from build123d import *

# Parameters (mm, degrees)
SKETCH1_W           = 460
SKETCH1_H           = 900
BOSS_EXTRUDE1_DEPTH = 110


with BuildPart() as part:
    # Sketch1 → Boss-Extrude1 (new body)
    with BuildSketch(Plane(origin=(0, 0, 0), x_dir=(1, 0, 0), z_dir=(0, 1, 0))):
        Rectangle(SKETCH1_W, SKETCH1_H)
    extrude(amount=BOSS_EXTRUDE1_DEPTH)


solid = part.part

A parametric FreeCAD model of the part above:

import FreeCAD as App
import Part
import Sketcher
from FreeCAD import Vector


def add_polygon(sketch, points):
    """Adds a closed chain of lines whose ends are joined by coincident constraints."""
    first, n = sketch.GeometryCount, len(points)
    for a, b in zip(points, points[1:] + points[:1]):
        sketch.addGeometry(Part.LineSegment(App.Vector(*a, 0), App.Vector(*b, 0)), False)
    for i in range(n):
        sketch.addConstraint(Sketcher.Constraint("Coincident", first + i, 2, first + (i + 1) % n, 1))

doc = App.newDocument("Part")
params = doc.addObject("Spreadsheet::Sheet", "Params")
for row, (alias, value) in enumerate([
    ("sketch1_width", "460 mm"),
    ("sketch1_height", "900 mm"),
    ("pad1_length", "110 mm"),
], start=1):
    params.set(f"A{row}", alias)
    params.set(f"B{row}", "=" + value)
    params.setAlias(f"B{row}", alias)

body = doc.addObject("PartDesign::Body", "Body")

# Sketch on XZ plane
sketch1 = body.newObject("Sketcher::SketchObject", "Sketch")
sketch1.AttachmentSupport = (doc.getObject("XZ_Plane"), [""])
sketch1.MapMode = "FlatFace"
add_polygon(sketch1, [(-230, -450), (-230, 450), (230, 450), (230, -450)])  # lines 0-3
sketch1.addConstraint([
    Sketcher.Constraint("Vertical", 0),
    Sketcher.Constraint("Horizontal", 1),
    Sketcher.Constraint("Vertical", 2),
    Sketcher.Constraint("Horizontal", 3),
    Sketcher.Constraint("Symmetric", 0, 2, 2, 2, -1, 1),
    Sketcher.Constraint("DistanceX", 1, 1, 1, 2, 460.0),
    Sketcher.Constraint("DistanceY", 0, 1, 0, 2, 900.0),
])
sketch1.setExpression("Constraints[9]", "Params.sketch1_width")
sketch1.setExpression("Constraints[10]", "Params.sketch1_height")
pad1 = body.newObject("PartDesign::Pad", "Pad")
pad1.Profile = sketch1
pad1.setExpression("Length", "Params.pad1_length")
pad1.Reversed = True

doc.recompute()
